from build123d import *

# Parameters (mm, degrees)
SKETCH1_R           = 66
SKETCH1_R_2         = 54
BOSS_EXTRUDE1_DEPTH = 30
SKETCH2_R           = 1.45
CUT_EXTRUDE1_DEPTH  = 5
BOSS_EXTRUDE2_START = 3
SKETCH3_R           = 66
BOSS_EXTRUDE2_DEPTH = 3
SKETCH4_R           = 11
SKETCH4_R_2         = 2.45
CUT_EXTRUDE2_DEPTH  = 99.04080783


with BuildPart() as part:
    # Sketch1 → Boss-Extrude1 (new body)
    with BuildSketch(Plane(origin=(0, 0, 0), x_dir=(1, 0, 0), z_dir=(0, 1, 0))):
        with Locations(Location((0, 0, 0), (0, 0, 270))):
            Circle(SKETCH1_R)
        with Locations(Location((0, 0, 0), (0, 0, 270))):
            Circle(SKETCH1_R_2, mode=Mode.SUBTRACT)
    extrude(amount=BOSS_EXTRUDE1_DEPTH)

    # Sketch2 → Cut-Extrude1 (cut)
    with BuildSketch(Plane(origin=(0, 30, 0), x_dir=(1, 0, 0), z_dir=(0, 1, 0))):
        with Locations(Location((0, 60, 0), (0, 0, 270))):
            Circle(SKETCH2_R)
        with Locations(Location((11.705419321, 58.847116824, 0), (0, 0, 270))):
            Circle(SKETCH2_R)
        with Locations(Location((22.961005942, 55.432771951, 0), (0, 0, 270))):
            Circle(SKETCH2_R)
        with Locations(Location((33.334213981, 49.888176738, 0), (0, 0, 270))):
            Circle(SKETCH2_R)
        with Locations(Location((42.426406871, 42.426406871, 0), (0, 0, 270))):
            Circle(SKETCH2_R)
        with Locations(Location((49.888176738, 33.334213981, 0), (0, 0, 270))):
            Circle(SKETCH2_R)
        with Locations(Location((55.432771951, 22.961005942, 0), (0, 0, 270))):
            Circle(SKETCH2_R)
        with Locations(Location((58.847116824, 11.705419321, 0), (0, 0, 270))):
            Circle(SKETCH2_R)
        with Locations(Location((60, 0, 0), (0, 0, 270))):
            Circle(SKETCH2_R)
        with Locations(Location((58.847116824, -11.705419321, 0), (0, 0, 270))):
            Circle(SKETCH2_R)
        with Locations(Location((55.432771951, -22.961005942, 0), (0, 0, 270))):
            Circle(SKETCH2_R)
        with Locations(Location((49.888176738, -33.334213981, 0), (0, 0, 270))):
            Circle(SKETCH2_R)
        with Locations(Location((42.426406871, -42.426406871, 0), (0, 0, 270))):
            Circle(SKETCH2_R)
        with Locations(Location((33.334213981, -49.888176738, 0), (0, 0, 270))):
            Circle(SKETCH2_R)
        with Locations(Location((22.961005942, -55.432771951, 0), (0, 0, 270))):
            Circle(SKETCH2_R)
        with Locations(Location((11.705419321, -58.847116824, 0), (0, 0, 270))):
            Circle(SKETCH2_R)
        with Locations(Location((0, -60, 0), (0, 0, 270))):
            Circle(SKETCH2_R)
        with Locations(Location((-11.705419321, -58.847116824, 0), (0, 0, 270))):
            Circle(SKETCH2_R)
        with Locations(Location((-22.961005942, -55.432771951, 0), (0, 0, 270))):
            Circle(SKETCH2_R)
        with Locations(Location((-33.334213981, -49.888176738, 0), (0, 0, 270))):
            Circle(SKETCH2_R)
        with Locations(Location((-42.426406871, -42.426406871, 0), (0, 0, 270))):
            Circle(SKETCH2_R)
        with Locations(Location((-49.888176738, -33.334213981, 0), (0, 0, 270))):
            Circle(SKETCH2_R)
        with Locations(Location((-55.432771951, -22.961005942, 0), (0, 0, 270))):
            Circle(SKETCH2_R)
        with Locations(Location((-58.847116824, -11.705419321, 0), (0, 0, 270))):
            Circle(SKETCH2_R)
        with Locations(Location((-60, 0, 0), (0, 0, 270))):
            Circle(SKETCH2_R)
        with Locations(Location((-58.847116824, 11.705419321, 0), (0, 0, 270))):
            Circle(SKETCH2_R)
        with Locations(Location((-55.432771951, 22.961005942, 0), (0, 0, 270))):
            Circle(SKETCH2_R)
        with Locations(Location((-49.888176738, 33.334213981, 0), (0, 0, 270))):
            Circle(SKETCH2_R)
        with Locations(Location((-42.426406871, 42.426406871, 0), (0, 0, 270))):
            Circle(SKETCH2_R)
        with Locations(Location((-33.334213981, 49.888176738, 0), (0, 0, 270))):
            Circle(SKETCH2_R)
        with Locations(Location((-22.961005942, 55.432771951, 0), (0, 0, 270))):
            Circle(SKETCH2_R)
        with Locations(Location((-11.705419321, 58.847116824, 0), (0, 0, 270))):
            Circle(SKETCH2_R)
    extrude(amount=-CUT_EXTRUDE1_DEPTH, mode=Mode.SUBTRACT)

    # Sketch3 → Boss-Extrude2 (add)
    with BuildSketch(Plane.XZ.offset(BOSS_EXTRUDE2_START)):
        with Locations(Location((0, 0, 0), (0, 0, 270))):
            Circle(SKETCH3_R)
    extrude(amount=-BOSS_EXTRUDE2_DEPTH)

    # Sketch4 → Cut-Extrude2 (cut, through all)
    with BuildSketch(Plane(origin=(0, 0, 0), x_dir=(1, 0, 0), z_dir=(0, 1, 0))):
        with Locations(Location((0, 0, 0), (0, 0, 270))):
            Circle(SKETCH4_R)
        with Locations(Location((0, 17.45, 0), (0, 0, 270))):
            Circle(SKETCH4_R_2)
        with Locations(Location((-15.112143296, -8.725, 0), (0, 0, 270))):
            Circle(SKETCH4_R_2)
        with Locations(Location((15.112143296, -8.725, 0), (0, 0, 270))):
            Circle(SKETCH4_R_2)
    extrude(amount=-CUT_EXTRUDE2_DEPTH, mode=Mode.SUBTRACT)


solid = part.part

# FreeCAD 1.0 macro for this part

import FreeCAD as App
import Part
import Sketcher

doc = App.newDocument("Part")
body = doc.addObject("PartDesign::Body", "Body")

# Sketch on XZ plane
sketch1 = body.newObject("Sketcher::SketchObject", "Sketch")
sketch1.AttachmentSupport = (doc.getObject("XZ_Plane"), [""])
sketch1.MapMode = "FlatFace"
sketch1.addGeometry(Part.Circle(App.Vector(0, 0, 0), App.Vector(0, 0, 1), 66), False)
sketch1.addGeometry(Part.Circle(App.Vector(0, 0, 0), App.Vector(0, 0, 1), 54), False)
sketch1.addConstraint(Sketcher.Constraint("Coincident", 0, 3, -1, 1))
sketch1.addConstraint(Sketcher.Constraint("Coincident", 1, 3, -1, 1))
sketch1.addConstraint(Sketcher.Constraint("Diameter", 0, 132.0))
sketch1.addConstraint(Sketcher.Constraint("Diameter", 1, 108.0))
pad1 = body.newObject("PartDesign::Pad", "Pad")
pad1.Profile = sketch1
pad1.Length = 30
pad1.Reversed = True

# Sketch on XZ plane
sketch2 = body.newObject("Sketcher::SketchObject", "Sketch001")
sketch2.AttachmentSupport = (doc.getObject("XZ_Plane"), [""])
sketch2.MapMode = "FlatFace"
sketch2.AttachmentOffset = App.Placement(App.Vector(0, 0, -30), App.Rotation())
sketch2.addGeometry(Part.Circle(App.Vector(0, -60, 0), App.Vector(0, 0, 1), 1.45), False)
sketch2.addGeometry(Part.Circle(App.Vector(11.705419, -58.847117, 0), App.Vector(0, 0, 1), 1.45), False)
sketch2.addGeometry(Part.Circle(App.Vector(22.961006, -55.432772, 0), App.Vector(0, 0, 1), 1.45), False)
sketch2.addGeometry(Part.Circle(App.Vector(33.334214, -49.888177, 0), App.Vector(0, 0, 1), 1.45), False)
sketch2.addGeometry(Part.Circle(App.Vector(42.426407, -42.426407, 0), App.Vector(0, 0, 1), 1.45), False)
sketch2.addGeometry(Part.Circle(App.Vector(49.888177, -33.334214, 0), App.Vector(0, 0, 1), 1.45), False)
sketch2.addGeometry(Part.Circle(App.Vector(55.432772, -22.961006, 0), App.Vector(0, 0, 1), 1.45), False)
sketch2.addGeometry(Part.Circle(App.Vector(58.847117, -11.705419, 0), App.Vector(0, 0, 1), 1.45), False)
sketch2.addGeometry(Part.Circle(App.Vector(60, 0, 0), App.Vector(0, 0, 1), 1.45), False)
sketch2.addGeometry(Part.Circle(App.Vector(58.847117, 11.705419, 0), App.Vector(0, 0, 1), 1.45), False)
sketch2.addGeometry(Part.Circle(App.Vector(55.432772, 22.961006, 0), App.Vector(0, 0, 1), 1.45), False)
sketch2.addGeometry(Part.Circle(App.Vector(49.888177, 33.334214, 0), App.Vector(0, 0, 1), 1.45), False)
sketch2.addGeometry(Part.Circle(App.Vector(42.426407, 42.426407, 0), App.Vector(0, 0, 1), 1.45), False)
sketch2.addGeometry(Part.Circle(App.Vector(33.334214, 49.888177, 0), App.Vector(0, 0, 1), 1.45), False)
sketch2.addGeometry(Part.Circle(App.Vector(22.961006, 55.432772, 0), App.Vector(0, 0, 1), 1.45), False)
sketch2.addGeometry(Part.Circle(App.Vector(11.705419, 58.847117, 0), App.Vector(0, 0, 1), 1.45), False)
sketch2.addGeometry(Part.Circle(App.Vector(0, 60, 0), App.Vector(0, 0, 1), 1.45), False)
sketch2.addGeometry(Part.Circle(App.Vector(-11.705419, 58.847117, 0), App.Vector(0, 0, 1), 1.45), False)
sketch2.addGeometry(Part.Circle(App.Vector(-22.961006, 55.432772, 0), App.Vector(0, 0, 1), 1.45), False)
sketch2.addGeometry(Part.Circle(App.Vector(-33.334214, 49.888177, 0), App.Vector(0, 0, 1), 1.45), False)
sketch2.addGeometry(Part.Circle(App.Vector(-42.426407, 42.426407, 0), App.Vector(0, 0, 1), 1.45), False)
sketch2.addGeometry(Part.Circle(App.Vector(-49.888177, 33.334214, 0), App.Vector(0, 0, 1), 1.45), False)
sketch2.addGeometry(Part.Circle(App.Vector(-55.432772, 22.961006, 0), App.Vector(0, 0, 1), 1.45), False)
sketch2.addGeometry(Part.Circle(App.Vector(-58.847117, 11.705419, 0), App.Vector(0, 0, 1), 1.45), False)
sketch2.addGeometry(Part.Circle(App.Vector(-60, 0, 0), App.Vector(0, 0, 1), 1.45), False)
sketch2.addGeometry(Part.Circle(App.Vector(-58.847117, -11.705419, 0), App.Vector(0, 0, 1), 1.45), False)
sketch2.addGeometry(Part.Circle(App.Vector(-55.432772, -22.961006, 0), App.Vector(0, 0, 1), 1.45), False)
sketch2.addGeometry(Part.Circle(App.Vector(-49.888177, -33.334214, 0), App.Vector(0, 0, 1), 1.45), False)
sketch2.addGeometry(Part.Circle(App.Vector(-42.426407, -42.426407, 0), App.Vector(0, 0, 1), 1.45), False)
sketch2.addGeometry(Part.Circle(App.Vector(-33.334214, -49.888177, 0), App.Vector(0, 0, 1), 1.45), False)
sketch2.addGeometry(Part.Circle(App.Vector(-22.961006, -55.432772, 0), App.Vector(0, 0, 1), 1.45), False)
sketch2.addGeometry(Part.Circle(App.Vector(-11.705419, -58.847117, 0), App.Vector(0, 0, 1), 1.45), False)
sketch2.addConstraint(Sketcher.Constraint("Equal", 0, 1))
sketch2.addConstraint(Sketcher.Constraint("Equal", 1, 2))
sketch2.addConstraint(Sketcher.Constraint("Equal", 2, 3))
sketch2.addConstraint(Sketcher.Constraint("Equal", 3, 4))
sketch2.addConstraint(Sketcher.Constraint("Equal", 4, 5))
sketch2.addConstraint(Sketcher.Constraint("Equal", 5, 6))
sketch2.addConstraint(Sketcher.Constraint("Equal", 6, 7))
sketch2.addConstraint(Sketcher.Constraint("Equal", 7, 8))
sketch2.addConstraint(Sketcher.Constraint("Equal", 8, 9))
sketch2.addConstraint(Sketcher.Constraint("Equal", 9, 10))
sketch2.addConstraint(Sketcher.Constraint("Equal", 10, 11))
sketch2.addConstraint(Sketcher.Constraint("Equal", 11, 12))
sketch2.addConstraint(Sketcher.Constraint("Equal", 12, 13))
sketch2.addConstraint(Sketcher.Constraint("Equal", 13, 14))
sketch2.addConstraint(Sketcher.Constraint("Equal", 14, 15))
sketch2.addConstraint(Sketcher.Constraint("Equal", 15, 16))
sketch2.addConstraint(Sketcher.Constraint("Equal", 16, 17))
sketch2.addConstraint(Sketcher.Constraint("Equal", 17, 18))
sketch2.addConstraint(Sketcher.Constraint("Equal", 18, 19))
sketch2.addConstraint(Sketcher.Constraint("Equal", 19, 20))
sketch2.addConstraint(Sketcher.Constraint("Equal", 20, 21))
sketch2.addConstraint(Sketcher.Constraint("Equal", 21, 22))
sketch2.addConstraint(Sketcher.Constraint("Equal", 22, 23))
sketch2.addConstraint(Sketcher.Constraint("Equal", 23, 24))
sketch2.addConstraint(Sketcher.Constraint("Equal", 24, 25))
sketch2.addConstraint(Sketcher.Constraint("Equal", 25, 26))
sketch2.addConstraint(Sketcher.Constraint("Equal", 26, 27))
sketch2.addConstraint(Sketcher.Constraint("Equal", 27, 28))
sketch2.addConstraint(Sketcher.Constraint("Equal", 28, 29))
sketch2.addConstraint(Sketcher.Constraint("Equal", 29, 30))
sketch2.addConstraint(Sketcher.Constraint("Equal", 30, 31))
sketch2.addConstraint(Sketcher.Constraint("Symmetric", 0, 3, 16, 3, -1, 1))
sketch2.addConstraint(Sketcher.Constraint("Symmetric", 1, 3, 17, 3, -1, 1))
sketch2.addConstraint(Sketcher.Constraint("Symmetric", 2, 3, 18, 3, -1, 1))
sketch2.addConstraint(Sketcher.Constraint("Symmetric", 3, 3, 19, 3, -1, 1))
sketch2.addConstraint(Sketcher.Constraint("Symmetric", 4, 3, 20, 3, -1, 1))
sketch2.addConstraint(Sketcher.Constraint("Symmetric", 5, 3, 21, 3, -1, 1))
sketch2.addConstraint(Sketcher.Constraint("Symmetric", 6, 3, 22, 3, -1, 1))
sketch2.addConstraint(Sketcher.Constraint("Symmetric", 7, 3, 23, 3, -1, 1))
sketch2.addConstraint(Sketcher.Constraint("Symmetric", 8, 3, 24, 3, -1, 1))
sketch2.addConstraint(Sketcher.Constraint("Symmetric", 9, 3, 25, 3, -1, 1))
sketch2.addConstraint(Sketcher.Constraint("Symmetric", 10, 3, 26, 3, -1, 1))
sketch2.addConstraint(Sketcher.Constraint("Symmetric", 11, 3, 27, 3, -1, 1))
sketch2.addConstraint(Sketcher.Constraint("Symmetric", 12, 3, 28, 3, -1, 1))
sketch2.addConstraint(Sketcher.Constraint("Symmetric", 13, 3, 29, 3, -1, 1))
sketch2.addConstraint(Sketcher.Constraint("Symmetric", 14, 3, 30, 3, -1, 1))
sketch2.addConstraint(Sketcher.Constraint("Symmetric", 15, 3, 31, 3, -1, 1))
sketch2.addConstraint(Sketcher.Constraint("Symmetric", 15, 3, 17, 3, -2))
sketch2.addConstraint(Sketcher.Constraint("Symmetric", 14, 3, 18, 3, -2))
sketch2.addConstraint(Sketcher.Constraint("Symmetric", 13, 3, 19, 3, -2))
sketch2.addConstraint(Sketcher.Constraint("Symmetric", 12, 3, 20, 3, -2))
sketch2.addConstraint(Sketcher.Constraint("Symmetric", 11, 3, 21, 3, -2))
sketch2.addConstraint(Sketcher.Constraint("Symmetric", 10, 3, 22, 3, -2))
sketch2.addConstraint(Sketcher.Constraint("Symmetric", 9, 3, 23, 3, -2))
sketch2.addConstraint(Sketcher.Constraint("PointOnObject", 0, 3, -2))
sketch2.addConstraint(Sketcher.Constraint("PointOnObject", 8, 3, -1))
sketch2.addConstraint(Sketcher.Constraint("Diameter", 0, 2.9))
sketch2.addConstraint(Sketcher.Constraint("DistanceY", 0, 3, -1, 1, 60.0))
sketch2.addConstraint(Sketcher.Constraint("DistanceX", -1, 1, 8, 3, 60.0))
sketch2.addConstraint(Sketcher.Constraint("DistanceX", 2, 3, 4, 3, 19.465401))
sketch2.addConstraint(Sketcher.Constraint("DistanceY", 4, 3, 6, 3, 19.465401))
sketch2.addConstraint(Sketcher.Constraint("DistanceX", -1, 1, 1, 3, 11.705419))
sketch2.addConstraint(Sketcher.Constraint("DistanceY", 2, 3, -1, 1, 55.432772))
sketch2.addConstraint(Sketcher.Constraint("DistanceX", -1, 1, 6, 3, 55.432772))
sketch2.addConstraint(Sketcher.Constraint("DistanceY", 7, 3, -1, 1, 11.705419))
sketch2.addConstraint(Sketcher.Constraint("DistanceX", 2, 3, 3, 3, 10.373208))
sketch2.addConstraint(Sketcher.Constraint("DistanceY", 1, 3, 3, 3, 8.95894))
sketch2.addConstraint(Sketcher.Constraint("DistanceY", 3, 3, 4, 3, 7.46177))
sketch2.addConstraint(Sketcher.Constraint("DistanceX", 4, 3, 5, 3, 7.46177))
sketch2.addConstraint(Sketcher.Constraint("DistanceY", 5, 3, 6, 3, 10.373208))
sketch2.addConstraint(Sketcher.Constraint("DistanceX", 5, 3, 7, 3, 8.95894))
sketch2.addConstraint(Sketcher.Constraint("DistanceY", 6, 3, 10, 3, 45.922012))
sketch2.addConstraint(Sketcher.Constraint("DistanceX", 18, 3, 14, 3, 45.922012))
pocket1 = body.newObject("PartDesign::Pocket", "Pocket")
pocket1.Profile = sketch2
pocket1.Length = 5
pocket1.Reversed = True

# Sketch on XZ plane
sketch3 = body.newObject("Sketcher::SketchObject", "Sketch002")
sketch3.AttachmentSupport = (doc.getObject("XZ_Plane"), [""])
sketch3.MapMode = "FlatFace"
sketch3.AttachmentOffset = App.Placement(App.Vector(0, 0, 3), App.Rotation())
sketch3.addGeometry(Part.Circle(App.Vector(0, 0, 0), App.Vector(0, 0, 1), 66), False)
sketch3.addConstraint(Sketcher.Constraint("Coincident", 0, 3, -1, 1))
sketch3.addConstraint(Sketcher.Constraint("Diameter", 0, 132.0))
pad2 = body.newObject("PartDesign::Pad", "Pad001")
pad2.Profile = sketch3
pad2.Length = 3
pad2.Reversed = True

# Sketch on XZ plane
sketch4 = body.newObject("Sketcher::SketchObject", "Sketch003")
sketch4.AttachmentSupport = (doc.getObject("XZ_Plane"), [""])
sketch4.MapMode = "FlatFace"
sketch4.addGeometry(Part.Circle(App.Vector(0, 0, 0), App.Vector(0, 0, 1), 11), False)
sketch4.addGeometry(Part.Circle(App.Vector(0, -17.45, 0), App.Vector(0, 0, 1), 2.45), False)
sketch4.addGeometry(Part.Circle(App.Vector(-15.112143, 8.725, 0), App.Vector(0, 0, 1), 2.45), False)
sketch4.addGeometry(Part.Circle(App.Vector(15.112143, 8.725, 0), App.Vector(0, 0, 1), 2.45), False)
sketch4.addConstraint(Sketcher.Constraint("Coincident", 0, 3, -1, 1))
sketch4.addConstraint(Sketcher.Constraint("Equal", 1, 2))
sketch4.addConstraint(Sketcher.Constraint("Equal", 2, 3))
sketch4.addConstraint(Sketcher.Constraint("Symmetric", 2, 3, 3, 3, -2))
sketch4.addConstraint(Sketcher.Constraint("PointOnObject", 1, 3, -2))
sketch4.addConstraint(Sketcher.Constraint("Diameter", 0, 22.0))
sketch4.addConstraint(Sketcher.Constraint("Diameter", 1, 4.9))
sketch4.addConstraint(Sketcher.Constraint("DistanceY", 1, 3, -1, 1, 17.45))
sketch4.addConstraint(Sketcher.Constraint("DistanceY", -1, 1, 2, 3, 8.725))
sketch4.addConstraint(Sketcher.Constraint("DistanceX", 2, 3, -1, 1, 15.112143))
pocket2 = body.newObject("PartDesign::Pocket", "Pocket001")
pocket2.Profile = sketch4
pocket2.Type = "ThroughAll"
pocket2.Reversed = True

doc.recompute()
